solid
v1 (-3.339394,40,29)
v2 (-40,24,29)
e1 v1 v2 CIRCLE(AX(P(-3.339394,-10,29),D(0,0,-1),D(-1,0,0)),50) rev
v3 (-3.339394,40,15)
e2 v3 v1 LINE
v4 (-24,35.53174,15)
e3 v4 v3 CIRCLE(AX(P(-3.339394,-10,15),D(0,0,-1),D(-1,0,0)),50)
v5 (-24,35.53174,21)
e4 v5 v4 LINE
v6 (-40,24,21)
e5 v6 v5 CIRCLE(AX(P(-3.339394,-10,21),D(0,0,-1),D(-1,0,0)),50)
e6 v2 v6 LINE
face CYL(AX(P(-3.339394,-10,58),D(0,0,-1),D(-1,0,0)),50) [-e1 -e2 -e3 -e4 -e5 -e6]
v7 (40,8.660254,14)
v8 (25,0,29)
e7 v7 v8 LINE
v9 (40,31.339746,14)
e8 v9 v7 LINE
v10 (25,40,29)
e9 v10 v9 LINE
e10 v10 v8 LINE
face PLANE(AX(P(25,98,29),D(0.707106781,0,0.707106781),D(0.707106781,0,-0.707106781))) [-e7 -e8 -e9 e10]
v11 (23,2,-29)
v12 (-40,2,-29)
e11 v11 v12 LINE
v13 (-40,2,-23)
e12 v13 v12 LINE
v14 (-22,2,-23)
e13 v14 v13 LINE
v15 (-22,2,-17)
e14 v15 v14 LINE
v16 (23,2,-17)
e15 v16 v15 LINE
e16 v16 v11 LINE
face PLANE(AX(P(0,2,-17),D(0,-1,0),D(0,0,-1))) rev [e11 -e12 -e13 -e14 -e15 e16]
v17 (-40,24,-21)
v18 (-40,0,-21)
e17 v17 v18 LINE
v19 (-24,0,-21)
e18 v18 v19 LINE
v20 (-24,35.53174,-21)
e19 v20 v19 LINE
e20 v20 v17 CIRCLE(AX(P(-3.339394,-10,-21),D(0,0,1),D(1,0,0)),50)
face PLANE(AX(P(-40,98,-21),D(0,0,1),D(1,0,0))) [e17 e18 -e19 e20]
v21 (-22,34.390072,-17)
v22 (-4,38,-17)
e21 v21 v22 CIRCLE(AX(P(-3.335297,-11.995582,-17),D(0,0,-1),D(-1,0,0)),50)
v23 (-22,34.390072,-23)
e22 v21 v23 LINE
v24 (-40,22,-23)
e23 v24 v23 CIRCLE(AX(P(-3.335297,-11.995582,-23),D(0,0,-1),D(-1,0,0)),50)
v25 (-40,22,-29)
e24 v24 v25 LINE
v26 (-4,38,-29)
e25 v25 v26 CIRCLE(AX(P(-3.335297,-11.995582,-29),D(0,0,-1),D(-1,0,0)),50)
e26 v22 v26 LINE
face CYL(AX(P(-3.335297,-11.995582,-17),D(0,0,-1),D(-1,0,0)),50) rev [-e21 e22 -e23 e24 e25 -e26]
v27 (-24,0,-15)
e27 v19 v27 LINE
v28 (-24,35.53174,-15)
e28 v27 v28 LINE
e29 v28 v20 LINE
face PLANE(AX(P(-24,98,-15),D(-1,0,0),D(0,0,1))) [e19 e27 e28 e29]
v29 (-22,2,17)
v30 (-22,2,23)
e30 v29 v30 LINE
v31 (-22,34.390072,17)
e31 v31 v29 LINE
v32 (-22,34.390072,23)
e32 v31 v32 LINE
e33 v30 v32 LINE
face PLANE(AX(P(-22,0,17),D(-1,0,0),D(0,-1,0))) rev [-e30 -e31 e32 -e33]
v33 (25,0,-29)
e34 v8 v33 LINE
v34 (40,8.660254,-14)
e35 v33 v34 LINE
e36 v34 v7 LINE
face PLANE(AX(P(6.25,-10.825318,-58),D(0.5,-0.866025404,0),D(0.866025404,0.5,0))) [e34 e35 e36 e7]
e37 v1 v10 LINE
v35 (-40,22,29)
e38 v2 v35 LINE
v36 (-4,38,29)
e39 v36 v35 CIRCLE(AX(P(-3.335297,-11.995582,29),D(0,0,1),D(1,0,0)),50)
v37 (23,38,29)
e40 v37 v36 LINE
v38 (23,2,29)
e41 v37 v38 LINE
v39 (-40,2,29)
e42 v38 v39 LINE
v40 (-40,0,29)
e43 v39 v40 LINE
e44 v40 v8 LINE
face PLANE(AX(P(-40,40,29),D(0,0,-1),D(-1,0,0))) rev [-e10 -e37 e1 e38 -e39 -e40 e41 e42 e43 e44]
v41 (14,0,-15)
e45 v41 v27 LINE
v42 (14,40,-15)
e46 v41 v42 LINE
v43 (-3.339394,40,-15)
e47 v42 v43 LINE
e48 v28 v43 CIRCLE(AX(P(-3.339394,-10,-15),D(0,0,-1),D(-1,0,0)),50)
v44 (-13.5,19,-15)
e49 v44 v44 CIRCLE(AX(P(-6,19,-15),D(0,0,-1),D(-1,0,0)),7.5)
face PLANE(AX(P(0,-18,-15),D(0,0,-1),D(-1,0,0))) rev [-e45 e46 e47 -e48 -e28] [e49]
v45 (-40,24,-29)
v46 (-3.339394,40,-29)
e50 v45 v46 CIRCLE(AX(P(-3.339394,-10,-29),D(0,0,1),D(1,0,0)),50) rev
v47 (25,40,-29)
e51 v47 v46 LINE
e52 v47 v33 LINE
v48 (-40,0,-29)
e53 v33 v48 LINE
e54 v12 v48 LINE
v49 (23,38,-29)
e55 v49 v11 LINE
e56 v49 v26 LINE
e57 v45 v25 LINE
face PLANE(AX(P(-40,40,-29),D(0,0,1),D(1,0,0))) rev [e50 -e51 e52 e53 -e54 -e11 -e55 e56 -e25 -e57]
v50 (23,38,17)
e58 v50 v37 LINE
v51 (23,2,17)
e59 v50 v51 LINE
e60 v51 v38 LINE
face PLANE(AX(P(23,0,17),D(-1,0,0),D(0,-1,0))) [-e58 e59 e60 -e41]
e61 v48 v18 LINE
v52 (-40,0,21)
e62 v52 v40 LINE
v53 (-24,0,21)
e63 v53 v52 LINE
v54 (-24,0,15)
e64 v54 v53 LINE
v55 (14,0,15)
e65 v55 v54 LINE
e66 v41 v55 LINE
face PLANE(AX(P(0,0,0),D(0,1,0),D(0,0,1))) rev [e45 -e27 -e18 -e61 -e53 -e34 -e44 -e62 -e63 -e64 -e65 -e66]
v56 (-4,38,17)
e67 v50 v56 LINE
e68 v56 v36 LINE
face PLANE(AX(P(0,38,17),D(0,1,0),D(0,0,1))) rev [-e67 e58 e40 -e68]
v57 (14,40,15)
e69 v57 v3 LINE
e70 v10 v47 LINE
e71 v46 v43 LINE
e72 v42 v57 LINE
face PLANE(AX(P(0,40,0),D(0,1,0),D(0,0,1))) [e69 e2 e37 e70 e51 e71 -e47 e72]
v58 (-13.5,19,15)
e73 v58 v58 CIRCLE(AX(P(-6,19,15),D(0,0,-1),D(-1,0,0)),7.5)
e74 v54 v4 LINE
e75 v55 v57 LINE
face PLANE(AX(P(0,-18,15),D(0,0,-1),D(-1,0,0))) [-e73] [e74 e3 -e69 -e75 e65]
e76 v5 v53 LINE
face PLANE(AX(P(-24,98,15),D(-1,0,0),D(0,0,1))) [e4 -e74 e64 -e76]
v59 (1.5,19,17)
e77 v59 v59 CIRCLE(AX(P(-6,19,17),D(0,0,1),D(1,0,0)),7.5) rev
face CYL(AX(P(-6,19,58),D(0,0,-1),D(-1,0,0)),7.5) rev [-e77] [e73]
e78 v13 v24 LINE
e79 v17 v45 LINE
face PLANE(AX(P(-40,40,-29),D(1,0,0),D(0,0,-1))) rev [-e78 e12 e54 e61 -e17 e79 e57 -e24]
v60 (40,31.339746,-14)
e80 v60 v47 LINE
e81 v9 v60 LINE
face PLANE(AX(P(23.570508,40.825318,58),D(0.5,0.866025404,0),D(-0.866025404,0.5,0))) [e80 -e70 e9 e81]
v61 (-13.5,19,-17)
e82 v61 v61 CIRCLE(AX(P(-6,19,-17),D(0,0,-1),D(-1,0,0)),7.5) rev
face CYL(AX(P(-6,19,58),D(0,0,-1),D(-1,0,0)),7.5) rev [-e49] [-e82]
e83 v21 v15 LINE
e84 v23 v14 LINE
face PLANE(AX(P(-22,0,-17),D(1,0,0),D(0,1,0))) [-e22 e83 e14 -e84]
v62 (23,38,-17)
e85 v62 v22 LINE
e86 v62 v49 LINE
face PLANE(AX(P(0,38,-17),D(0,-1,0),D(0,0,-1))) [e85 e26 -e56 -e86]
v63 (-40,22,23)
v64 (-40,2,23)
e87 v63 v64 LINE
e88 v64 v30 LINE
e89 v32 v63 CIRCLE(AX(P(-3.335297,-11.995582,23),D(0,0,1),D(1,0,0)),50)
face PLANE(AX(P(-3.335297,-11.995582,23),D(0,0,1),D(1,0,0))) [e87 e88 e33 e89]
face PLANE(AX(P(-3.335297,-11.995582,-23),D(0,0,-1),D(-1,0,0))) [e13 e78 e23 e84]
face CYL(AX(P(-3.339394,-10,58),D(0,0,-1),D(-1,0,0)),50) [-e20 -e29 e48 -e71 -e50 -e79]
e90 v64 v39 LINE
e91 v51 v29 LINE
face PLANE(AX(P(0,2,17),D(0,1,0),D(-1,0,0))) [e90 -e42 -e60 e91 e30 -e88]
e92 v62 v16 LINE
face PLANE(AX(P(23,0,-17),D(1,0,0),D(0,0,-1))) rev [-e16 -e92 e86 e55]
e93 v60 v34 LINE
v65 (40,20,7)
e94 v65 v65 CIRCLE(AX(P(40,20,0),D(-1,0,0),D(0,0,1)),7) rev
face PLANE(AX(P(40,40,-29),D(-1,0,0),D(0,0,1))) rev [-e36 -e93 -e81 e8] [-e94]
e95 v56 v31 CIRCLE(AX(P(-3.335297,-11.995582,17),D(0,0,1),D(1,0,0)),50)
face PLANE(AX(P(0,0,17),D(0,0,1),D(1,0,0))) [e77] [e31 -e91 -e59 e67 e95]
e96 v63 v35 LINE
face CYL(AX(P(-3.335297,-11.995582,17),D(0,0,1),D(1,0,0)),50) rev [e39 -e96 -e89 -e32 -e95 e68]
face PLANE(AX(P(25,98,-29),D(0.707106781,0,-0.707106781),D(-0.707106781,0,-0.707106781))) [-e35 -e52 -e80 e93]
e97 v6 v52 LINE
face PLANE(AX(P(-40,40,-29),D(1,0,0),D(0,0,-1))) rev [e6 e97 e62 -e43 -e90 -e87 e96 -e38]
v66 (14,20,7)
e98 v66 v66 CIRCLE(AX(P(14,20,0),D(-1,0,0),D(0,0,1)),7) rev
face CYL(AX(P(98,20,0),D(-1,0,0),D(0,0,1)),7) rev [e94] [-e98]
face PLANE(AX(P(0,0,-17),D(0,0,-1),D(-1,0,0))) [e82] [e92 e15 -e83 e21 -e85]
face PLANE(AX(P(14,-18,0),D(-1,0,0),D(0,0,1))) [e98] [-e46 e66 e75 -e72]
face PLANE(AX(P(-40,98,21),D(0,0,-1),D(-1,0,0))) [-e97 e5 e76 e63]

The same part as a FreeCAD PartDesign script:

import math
import FreeCAD as App
import Part
import Sketcher
Q = App.Units.Quantity


def add_polygon(sketch, points):
    """Adds a closed chain of lines whose ends are joined by coincident constraints."""
    first, n = sketch.GeometryCount, len(points)
    for a, b in zip(points, points[1:] + points[:1]):
        sketch.addGeometry(Part.LineSegment(App.Vector(*a, 0), App.Vector(*b, 0)), False)
    for i in range(n):
        sketch.addConstraint(Sketcher.Constraint("Coincident", first + i, 2, first + (i + 1) % n, 1))

doc = App.newDocument("Part")
body = doc.addObject("PartDesign::Body", "Body")

# Sketch on XZ plane
sketch1 = body.newObject("Sketcher::SketchObject", "Sketch")
sketch1.AttachmentSupport = (doc.getObject("XZ_Plane"), [""])
sketch1.MapMode = "FlatFace"
add_polygon(sketch1, [(-40, -29), (-40, 29), (40, 29), (40, -29)])  # lines 0-3
sketch1.addConstraint([
    Sketcher.Constraint("Vertical", 0),
    Sketcher.Constraint("Horizontal", 1),
    Sketcher.Constraint("Vertical", 2),
    Sketcher.Constraint("Horizontal", 3),
    Sketcher.Constraint("Symmetric", 0, 2, 2, 2, -1, 1),
    Sketcher.Constraint("DistanceX", 1, 1, 1, 2, Q("80 mm")),
    Sketcher.Constraint("DistanceY", 0, 1, 0, 2, Q("58 mm")),
])
pad1 = body.newObject("PartDesign::Pad", "Pad")
pad1.Profile = sketch1
pad1.Length = 40
pad1.Reversed = True

# Sketch on XY plane
sketch2 = body.newObject("Sketcher::SketchObject", "Sketch001")
sketch2.AttachmentSupport = (doc.getObject("XY_Plane"), [""])
sketch2.MapMode = "FlatFace"
sketch2.addGeometry(Part.LineSegment(App.Vector(-40, 40, 0), App.Vector(-40, 24, 0)), False)  # 0
sketch2.addGeometry(Part.ArcOfCircle(Part.Circle(App.Vector(-3, -10, 0), App.Vector(0, 0, 1), 50), math.radians(90), math.radians(137)), False)  # 1
sketch2.addGeometry(Part.LineSegment(App.Vector(-3, 40, 0), App.Vector(-40, 40, 0)), False)  # 2
add_polygon(sketch2, [(25, 40), (40, 31), (40, 40)])  # lines 3-5
sketch2.addGeometry(Part.Circle(App.Vector(-6, 19, 0), App.Vector(0, 0, 1), 8), False)  # 6
add_polygon(sketch2, [(25, 0), (40, 0), (40, 9)])  # lines 7-9
sketch2.addConstraint([
    Sketcher.Constraint("Coincident", 0, 2, 1, 2),
    Sketcher.Constraint("Tangent", 1, 1, 2, 1),
    Sketcher.Constraint("Coincident", 2, 2, 0, 1),
    Sketcher.Constraint("Vertical", 0),
    Sketcher.Constraint("Horizontal", 2),
    Sketcher.Constraint("Vertical", 4),
    Sketcher.Constraint("Horizontal", 5),
    Sketcher.Constraint("Horizontal", 7),
    Sketcher.Constraint("Vertical", 8),
    Sketcher.Constraint("Symmetric", 2, 2, 4, 2, -2),
    Sketcher.Constraint("PointOnObject", 7, 2, -1),
    Sketcher.Constraint("Vertical", 4, 2, 7, 2),
    Sketcher.Constraint("Vertical", 5, 2, 9, 2),
    Sketcher.Constraint("Equal", 4, 8),
    Sketcher.Constraint("Diameter", 6, Q("15 mm")),
    Sketcher.Constraint("Radius", 1, Q("50 mm")),
    Sketcher.Constraint("DistanceX", 5, 2, 5, 1, Q("15 mm")),
    Sketcher.Constraint("DistanceY", 0, 2, 0, 1, Q("16 mm")),
    Sketcher.Constraint("Angle", 3, Q("-30 deg")),
    Sketcher.Constraint("DistanceY", 1, 3, -1, 1, Q("10 mm")),
    Sketcher.Constraint("DistanceX", 6, 3, -1, 1, Q("6 mm")),
    Sketcher.Constraint("DistanceY", -1, 1, 6, 3, Q("19 mm")),
    Sketcher.Constraint("DistanceX", 0, 2, -1, 1, Q("40 mm")),
])
pocket1 = body.newObject("PartDesign::Pocket", "Pocket")
pocket1.Profile = sketch2
pocket1.Type = "ThroughAll"
pocket1.Midplane = True

# Sketch on XZ plane
sketch3 = body.newObject("Sketcher::SketchObject", "Sketch002")
sketch3.AttachmentSupport = (doc.getObject("XZ_Plane"), [""])
sketch3.MapMode = "FlatFace"
sketch3.AttachmentOffset = App.Placement(App.Vector(0, 0, -40), App.Rotation())
add_polygon(sketch3, [(-40, -15), (-40, 15), (14, 15), (14, -15)])  # lines 0-3
sketch3.addConstraint([
    Sketcher.Constraint("Vertical", 0),
    Sketcher.Constraint("Horizontal", 1),
    Sketcher.Constraint("Vertical", 2),
    Sketcher.Constraint("Horizontal", 3),
    Sketcher.Constraint("DistanceX", 1, 1, 1, 2, Q("54 mm")),
    Sketcher.Constraint("DistanceY", 0, 1, 0, 2, Q("30 mm")),
    Sketcher.Constraint("DistanceX", 0, 2, -1, 1, Q("40 mm")),
    Sketcher.Constraint("DistanceY", -1, 1, 0, 2, Q("15 mm")),
])
pocket2 = body.newObject("PartDesign::Pocket", "Pocket001")
pocket2.Profile = sketch3
pocket2.Length = 58
pocket2.Reversed = True

# Sketch on XZ plane
sketch4 = body.newObject("Sketcher::SketchObject", "Sketch003")
sketch4.AttachmentSupport = (doc.getObject("XZ_Plane"), [""])
sketch4.MapMode = "FlatFace"
sketch4.AttachmentOffset = App.Placement(App.Vector(0, 0, -40), App.Rotation())
add_polygon(sketch4, [(-40, -21), (-40, -15), (-24, -15), (-24, -21)])  # lines 0-3
add_polygon(sketch4, [(-40, 15), (-40, 21), (-24, 21), (-24, 15)])  # lines 4-7
sketch4.addConstraint([
    Sketcher.Constraint("Vertical", 0),
    Sketcher.Constraint("Horizontal", 1),
    Sketcher.Constraint("Vertical", 2),
    Sketcher.Constraint("Horizontal", 3),
    Sketcher.Constraint("Vertical", 4),
    Sketcher.Constraint("Horizontal", 5),
    Sketcher.Constraint("Vertical", 6),
    Sketcher.Constraint("Horizontal", 7),
    Sketcher.Constraint("Symmetric", 3, 2, 4, 2, -1),
    Sketcher.Constraint("Symmetric", 1, 2, 6, 2, -1),
    Sketcher.Constraint("DistanceX", 1, 1, 1, 2, Q("16 mm")),
    Sketcher.Constraint("DistanceY", 0, 1, 0, 2, Q("6 mm")),
    Sketcher.Constraint("DistanceX", 0, 2, -1, 1, Q("40 mm")),
    Sketcher.Constraint("DistanceY", 0, 2, -1, 1, Q("15 mm")),
])
pocket3 = body.newObject("PartDesign::Pocket", "Pocket002")
pocket3.Profile = sketch4
pocket3.Type = "ThroughAll"
pocket3.Midplane = True

# Sketch on YZ plane
sketch5 = body.newObject("Sketcher::SketchObject", "Sketch004")
sketch5.AttachmentSupport = (doc.getObject("YZ_Plane"), [""])
sketch5.MapMode = "FlatFace"
sketch5.AttachmentOffset = App.Placement(App.Vector(0, 0, 40), App.Rotation())
sketch5.addGeometry(Part.Circle(App.Vector(20, 0, 0), App.Vector(0, 0, 1), 7), False)
sketch5.addConstraint([
    Sketcher.Constraint("PointOnObject", 0, 3, -1),
    Sketcher.Constraint("Diameter", 0, Q("14 mm")),
    Sketcher.Constraint("DistanceX", -1, 1, 0, 3, Q("20 mm")),
])
pocket4 = body.newObject("PartDesign::Pocket", "Pocket003")
pocket4.Profile = sketch5
pocket4.Type = "ThroughAll"
pocket4.Midplane = True

# Sketch on XZ plane
sketch6 = body.newObject("Sketcher::SketchObject", "Sketch005")
sketch6.AttachmentSupport = (doc.getObject("XZ_Plane"), [""])
sketch6.MapMode = "FlatFace"
sketch6.AttachmentOffset = App.Placement(App.Vector(0, 0, -40), App.Rotation())
add_polygon(sketch6, [(40, -29), (25, -29), (40, -14)])  # lines 0-2
add_polygon(sketch6, [(40, 14), (25, 29), (40, 29)])  # lines 3-5
sketch6.addConstraint([
    Sketcher.Constraint("Horizontal", 0),
    Sketcher.Constraint("Vertical", 2),
    Sketcher.Constraint("Horizontal", 4),
    Sketcher.Constraint("Vertical", 5),
    Sketcher.Constraint("Symmetric", 0, 2, 3, 2, -1),
    Sketcher.Constraint("Symmetric", 1, 2, 5, 2, -1),
    Sketcher.Constraint("Perpendicular", 1, 3),
    Sketcher.Constraint("DistanceX", 0, 2, 0, 1, Q("15 mm")),
    Sketcher.Constraint("DistanceX", -1, 1, 0, 2, Q("25 mm")),
    Sketcher.Constraint("DistanceY", 0, 2, -1, 1, Q("29 mm")),
])
pocket5 = body.newObject("PartDesign::Pocket", "Pocket004")
pocket5.Profile = sketch6
pocket5.Type = "ThroughAll"
pocket5.Midplane = True

# Sketch on XY plane
sketch7 = body.newObject("Sketcher::SketchObject", "Sketch006")
sketch7.AttachmentSupport = (doc.getObject("XY_Plane"), [""])
sketch7.MapMode = "FlatFace"
sketch7.AttachmentOffset = App.Placement(App.Vector(0, 0, 29), App.Rotation())
sketch7.addGeometry([
    Part.LineSegment(App.Vector(23, 2, 0), App.Vector(23, 38, 0)),  # 0
    Part.LineSegment(App.Vector(23, 38, 0), App.Vector(-4, 38, 0)),  # 1
    Part.ArcOfCircle(Part.Circle(App.Vector(-3, -12, 0), App.Vector(0, 0, 1), 50), math.radians(91), math.radians(112)),  # 2
    Part.LineSegment(App.Vector(-22, 34, 0), App.Vector(-22, 2, 0)),  # 3
    Part.LineSegment(App.Vector(-22, 2, 0), App.Vector(23, 2, 0)),  # 4
    Part.Circle(App.Vector(-6, 19, 0), App.Vector(0, 0, 1), 8),  # 5
], False)
sketch7.addConstraint([
    Sketcher.Constraint("Coincident", 0, 2, 1, 1),
    Sketcher.Constraint("Coincident", 1, 2, 2, 1),
    Sketcher.Constraint("Coincident", 2, 2, 3, 1),
    Sketcher.Constraint("Coincident", 3, 2, 4, 1),
    Sketcher.Constraint("Coincident", 4, 2, 0, 1),
    Sketcher.Constraint("Vertical", 0),
    Sketcher.Constraint("Horizontal", 1),
    Sketcher.Constraint("Vertical", 3),
    Sketcher.Constraint("Horizontal", 4),
    Sketcher.Constraint("Diameter", 5, Q("15 mm")),
    Sketcher.Constraint("Radius", 2, Q("50 mm")),
    Sketcher.Constraint("DistanceX", 1, 2, 1, 1, Q("27 mm")),
    Sketcher.Constraint("DistanceX", 4, 1, 4, 2, Q("45 mm")),
    Sketcher.Constraint("DistanceY", 0, 1, 0, 2, Q("36 mm")),
    Sketcher.Constraint("DistanceX", 5, 3, -1, 1, Q("6 mm")),
    Sketcher.Constraint("DistanceY", -1, 1, 5, 3, Q("19 mm")),
    Sketcher.Constraint("DistanceX", -1, 1, 0, 2, Q("23 mm")),
    Sketcher.Constraint("DistanceY", -1, 1, 0, 2, Q("38 mm")),
    Sketcher.Constraint("DistanceY", 3, 2, 3, 1, Q("32.390072 mm")),
])
pocket6 = body.newObject("PartDesign::Pocket", "Pocket005")
pocket6.Profile = sketch7
pocket6.Length = 12

# Sketch on XY plane
sketch8 = body.newObject("Sketcher::SketchObject", "Sketch007")
sketch8.AttachmentSupport = (doc.getObject("XY_Plane"), [""])
sketch8.MapMode = "FlatFace"
sketch8.AttachmentOffset = App.Placement(App.Vector(0, 0, 29), App.Rotation())
sketch8.addGeometry([
    Part.LineSegment(App.Vector(-40, 2, 0), App.Vector(-22, 2, 0)),
    Part.LineSegment(App.Vector(-22, 2, 0), App.Vector(-22, 34, 0)),
    Part.ArcOfCircle(Part.Circle(App.Vector(-3, -12, 0), App.Vector(0, 0, 1), 50), math.radians(112), math.radians(137)),
    Part.LineSegment(App.Vector(-40, 22, 0), App.Vector(-40, 2, 0)),
], False)
sketch8.addConstraint([
    Sketcher.Constraint("Coincident", 0, 2, 1, 1),
    Sketcher.Constraint("Coincident", 1, 2, 2, 1),
    Sketcher.Constraint("Coincident", 2, 2, 3, 1),
    Sketcher.Constraint("Coincident", 3, 2, 0, 1),
    Sketcher.Constraint("Horizontal", 0),
    Sketcher.Constraint("Vertical", 1),
    Sketcher.Constraint("Vertical", 3),
    Sketcher.Constraint("Radius", 2, Q("50 mm")),
    Sketcher.Constraint("DistanceX", 0, 1, 0, 2, Q("18 mm")),
    Sketcher.Constraint("DistanceY", 3, 2, 3, 1, Q("20 mm")),
    Sketcher.Constraint("DistanceX", 0, 2, -1, 1, Q("22 mm")),
    Sketcher.Constraint("DistanceY", -1, 1, 0, 2, Q("2 mm")),
    Sketcher.Constraint("DistanceY", 1, 1, 1, 2, Q("32.390072 mm")),
])
pocket7 = body.newObject("PartDesign::Pocket", "Pocket006")
pocket7.Profile = sketch8
pocket7.Length = 6

# Sketch on XY plane
sketch9 = body.newObject("Sketcher::SketchObject", "Sketch008")
sketch9.AttachmentSupport = (doc.getObject("XY_Plane"), [""])
sketch9.MapMode = "FlatFace"
sketch9.AttachmentOffset = App.Placement(App.Vector(0, 0, -29), App.Rotation())
sketch9.addGeometry([
    Part.LineSegment(App.Vector(-4, 38, 0), App.Vector(23, 38, 0)),  # 0
    Part.LineSegment(App.Vector(23, 38, 0), App.Vector(23, 2, 0)),  # 1
    Part.LineSegment(App.Vector(23, 2, 0), App.Vector(-22, 2, 0)),  # 2
    Part.LineSegment(App.Vector(-22, 2, 0), App.Vector(-22, 34, 0)),  # 3
    Part.ArcOfCircle(Part.Circle(App.Vector(-3, -12, 0), App.Vector(0, 0, 1), 50), math.radians(91), math.radians(112)),  # 4
    Part.Circle(App.Vector(-6, 19, 0), App.Vector(0, 0, 1), 8),  # 5
], False)
sketch9.addConstraint([
    Sketcher.Constraint("Coincident", 0, 2, 1, 1),
    Sketcher.Constraint("Coincident", 1, 2, 2, 1),
    Sketcher.Constraint("Coincident", 2, 2, 3, 1),
    Sketcher.Constraint("Coincident", 3, 2, 4, 2),
    Sketcher.Constraint("Coincident", 4, 1, 0, 1),
    Sketcher.Constraint("Horizontal", 0),
    Sketcher.Constraint("Vertical", 1),
    Sketcher.Constraint("Horizontal", 2),
    Sketcher.Constraint("Vertical", 3),
    Sketcher.Constraint("Diameter", 5, Q("15 mm")),
    Sketcher.Constraint("Radius", 4, Q("50 mm")),
    Sketcher.Constraint("DistanceX", 0, 1, 0, 2, Q("27 mm")),
    Sketcher.Constraint("DistanceX", 2, 2, 2, 1, Q("45 mm")),
    Sketcher.Constraint("DistanceY", 1, 2, 1, 1, Q("36 mm")),
    Sketcher.Constraint("DistanceX", 5, 3, -1, 1, Q("6 mm")),
    Sketcher.Constraint("DistanceY", -1, 1, 5, 3, Q("19 mm")),
    Sketcher.Constraint("DistanceX", -1, 1, 0, 2, Q("23 mm")),
    Sketcher.Constraint("DistanceY", -1, 1, 0, 2, Q("38 mm")),
    Sketcher.Constraint("DistanceY", 3, 1, 3, 2, Q("32.390072 mm")),
])
pocket8 = body.newObject("PartDesign::Pocket", "Pocket007")
pocket8.Profile = sketch9
pocket8.Length = 12
pocket8.Reversed = True

# Sketch on XY plane
sketch10 = body.newObject("Sketcher::SketchObject", "Sketch009")
sketch10.AttachmentSupport = (doc.getObject("XY_Plane"), [""])
sketch10.MapMode = "FlatFace"
sketch10.AttachmentOffset = App.Placement(App.Vector(0, 0, -29), App.Rotation())
sketch10.addGeometry([
    Part.LineSegment(App.Vector(-22, 2, 0), App.Vector(-40, 2, 0)),
    Part.LineSegment(App.Vector(-40, 2, 0), App.Vector(-40, 22, 0)),
    Part.ArcOfCircle(Part.Circle(App.Vector(-3, -12, 0), App.Vector(0, 0, 1), 50), math.radians(112), math.radians(137)),
    Part.LineSegment(App.Vector(-22, 34, 0), App.Vector(-22, 2, 0)),
], False)
sketch10.addConstraint([
    Sketcher.Constraint("Coincident", 0, 2, 1, 1),
    Sketcher.Constraint("Coincident", 1, 2, 2, 2),
    Sketcher.Constraint("Coincident", 2, 1, 3, 1),
    Sketcher.Constraint("Coincident", 3, 2, 0, 1),
    Sketcher.Constraint("Horizontal", 0),
    Sketcher.Constraint("Vertical", 1),
    Sketcher.Constraint("Vertical", 3),
    Sketcher.Constraint("Radius", 2, Q("50 mm")),
    Sketcher.Constraint("DistanceX", 0, 2, 0, 1, Q("18 mm")),
    Sketcher.Constraint("DistanceY", 1, 1, 1, 2, Q("20 mm")),
    Sketcher.Constraint("DistanceX", 0, 2, -1, 1, Q("40 mm")),
    Sketcher.Constraint("DistanceY", -1, 1, 0, 2, Q("2 mm")),
    Sketcher.Constraint("DistanceY", 3, 2, 3, 1, Q("32.390072 mm")),
])
pocket9 = body.newObject("PartDesign::Pocket", "Pocket008")
pocket9.Profile = sketch10
pocket9.Length = 6
pocket9.Reversed = True

doc.recompute()
